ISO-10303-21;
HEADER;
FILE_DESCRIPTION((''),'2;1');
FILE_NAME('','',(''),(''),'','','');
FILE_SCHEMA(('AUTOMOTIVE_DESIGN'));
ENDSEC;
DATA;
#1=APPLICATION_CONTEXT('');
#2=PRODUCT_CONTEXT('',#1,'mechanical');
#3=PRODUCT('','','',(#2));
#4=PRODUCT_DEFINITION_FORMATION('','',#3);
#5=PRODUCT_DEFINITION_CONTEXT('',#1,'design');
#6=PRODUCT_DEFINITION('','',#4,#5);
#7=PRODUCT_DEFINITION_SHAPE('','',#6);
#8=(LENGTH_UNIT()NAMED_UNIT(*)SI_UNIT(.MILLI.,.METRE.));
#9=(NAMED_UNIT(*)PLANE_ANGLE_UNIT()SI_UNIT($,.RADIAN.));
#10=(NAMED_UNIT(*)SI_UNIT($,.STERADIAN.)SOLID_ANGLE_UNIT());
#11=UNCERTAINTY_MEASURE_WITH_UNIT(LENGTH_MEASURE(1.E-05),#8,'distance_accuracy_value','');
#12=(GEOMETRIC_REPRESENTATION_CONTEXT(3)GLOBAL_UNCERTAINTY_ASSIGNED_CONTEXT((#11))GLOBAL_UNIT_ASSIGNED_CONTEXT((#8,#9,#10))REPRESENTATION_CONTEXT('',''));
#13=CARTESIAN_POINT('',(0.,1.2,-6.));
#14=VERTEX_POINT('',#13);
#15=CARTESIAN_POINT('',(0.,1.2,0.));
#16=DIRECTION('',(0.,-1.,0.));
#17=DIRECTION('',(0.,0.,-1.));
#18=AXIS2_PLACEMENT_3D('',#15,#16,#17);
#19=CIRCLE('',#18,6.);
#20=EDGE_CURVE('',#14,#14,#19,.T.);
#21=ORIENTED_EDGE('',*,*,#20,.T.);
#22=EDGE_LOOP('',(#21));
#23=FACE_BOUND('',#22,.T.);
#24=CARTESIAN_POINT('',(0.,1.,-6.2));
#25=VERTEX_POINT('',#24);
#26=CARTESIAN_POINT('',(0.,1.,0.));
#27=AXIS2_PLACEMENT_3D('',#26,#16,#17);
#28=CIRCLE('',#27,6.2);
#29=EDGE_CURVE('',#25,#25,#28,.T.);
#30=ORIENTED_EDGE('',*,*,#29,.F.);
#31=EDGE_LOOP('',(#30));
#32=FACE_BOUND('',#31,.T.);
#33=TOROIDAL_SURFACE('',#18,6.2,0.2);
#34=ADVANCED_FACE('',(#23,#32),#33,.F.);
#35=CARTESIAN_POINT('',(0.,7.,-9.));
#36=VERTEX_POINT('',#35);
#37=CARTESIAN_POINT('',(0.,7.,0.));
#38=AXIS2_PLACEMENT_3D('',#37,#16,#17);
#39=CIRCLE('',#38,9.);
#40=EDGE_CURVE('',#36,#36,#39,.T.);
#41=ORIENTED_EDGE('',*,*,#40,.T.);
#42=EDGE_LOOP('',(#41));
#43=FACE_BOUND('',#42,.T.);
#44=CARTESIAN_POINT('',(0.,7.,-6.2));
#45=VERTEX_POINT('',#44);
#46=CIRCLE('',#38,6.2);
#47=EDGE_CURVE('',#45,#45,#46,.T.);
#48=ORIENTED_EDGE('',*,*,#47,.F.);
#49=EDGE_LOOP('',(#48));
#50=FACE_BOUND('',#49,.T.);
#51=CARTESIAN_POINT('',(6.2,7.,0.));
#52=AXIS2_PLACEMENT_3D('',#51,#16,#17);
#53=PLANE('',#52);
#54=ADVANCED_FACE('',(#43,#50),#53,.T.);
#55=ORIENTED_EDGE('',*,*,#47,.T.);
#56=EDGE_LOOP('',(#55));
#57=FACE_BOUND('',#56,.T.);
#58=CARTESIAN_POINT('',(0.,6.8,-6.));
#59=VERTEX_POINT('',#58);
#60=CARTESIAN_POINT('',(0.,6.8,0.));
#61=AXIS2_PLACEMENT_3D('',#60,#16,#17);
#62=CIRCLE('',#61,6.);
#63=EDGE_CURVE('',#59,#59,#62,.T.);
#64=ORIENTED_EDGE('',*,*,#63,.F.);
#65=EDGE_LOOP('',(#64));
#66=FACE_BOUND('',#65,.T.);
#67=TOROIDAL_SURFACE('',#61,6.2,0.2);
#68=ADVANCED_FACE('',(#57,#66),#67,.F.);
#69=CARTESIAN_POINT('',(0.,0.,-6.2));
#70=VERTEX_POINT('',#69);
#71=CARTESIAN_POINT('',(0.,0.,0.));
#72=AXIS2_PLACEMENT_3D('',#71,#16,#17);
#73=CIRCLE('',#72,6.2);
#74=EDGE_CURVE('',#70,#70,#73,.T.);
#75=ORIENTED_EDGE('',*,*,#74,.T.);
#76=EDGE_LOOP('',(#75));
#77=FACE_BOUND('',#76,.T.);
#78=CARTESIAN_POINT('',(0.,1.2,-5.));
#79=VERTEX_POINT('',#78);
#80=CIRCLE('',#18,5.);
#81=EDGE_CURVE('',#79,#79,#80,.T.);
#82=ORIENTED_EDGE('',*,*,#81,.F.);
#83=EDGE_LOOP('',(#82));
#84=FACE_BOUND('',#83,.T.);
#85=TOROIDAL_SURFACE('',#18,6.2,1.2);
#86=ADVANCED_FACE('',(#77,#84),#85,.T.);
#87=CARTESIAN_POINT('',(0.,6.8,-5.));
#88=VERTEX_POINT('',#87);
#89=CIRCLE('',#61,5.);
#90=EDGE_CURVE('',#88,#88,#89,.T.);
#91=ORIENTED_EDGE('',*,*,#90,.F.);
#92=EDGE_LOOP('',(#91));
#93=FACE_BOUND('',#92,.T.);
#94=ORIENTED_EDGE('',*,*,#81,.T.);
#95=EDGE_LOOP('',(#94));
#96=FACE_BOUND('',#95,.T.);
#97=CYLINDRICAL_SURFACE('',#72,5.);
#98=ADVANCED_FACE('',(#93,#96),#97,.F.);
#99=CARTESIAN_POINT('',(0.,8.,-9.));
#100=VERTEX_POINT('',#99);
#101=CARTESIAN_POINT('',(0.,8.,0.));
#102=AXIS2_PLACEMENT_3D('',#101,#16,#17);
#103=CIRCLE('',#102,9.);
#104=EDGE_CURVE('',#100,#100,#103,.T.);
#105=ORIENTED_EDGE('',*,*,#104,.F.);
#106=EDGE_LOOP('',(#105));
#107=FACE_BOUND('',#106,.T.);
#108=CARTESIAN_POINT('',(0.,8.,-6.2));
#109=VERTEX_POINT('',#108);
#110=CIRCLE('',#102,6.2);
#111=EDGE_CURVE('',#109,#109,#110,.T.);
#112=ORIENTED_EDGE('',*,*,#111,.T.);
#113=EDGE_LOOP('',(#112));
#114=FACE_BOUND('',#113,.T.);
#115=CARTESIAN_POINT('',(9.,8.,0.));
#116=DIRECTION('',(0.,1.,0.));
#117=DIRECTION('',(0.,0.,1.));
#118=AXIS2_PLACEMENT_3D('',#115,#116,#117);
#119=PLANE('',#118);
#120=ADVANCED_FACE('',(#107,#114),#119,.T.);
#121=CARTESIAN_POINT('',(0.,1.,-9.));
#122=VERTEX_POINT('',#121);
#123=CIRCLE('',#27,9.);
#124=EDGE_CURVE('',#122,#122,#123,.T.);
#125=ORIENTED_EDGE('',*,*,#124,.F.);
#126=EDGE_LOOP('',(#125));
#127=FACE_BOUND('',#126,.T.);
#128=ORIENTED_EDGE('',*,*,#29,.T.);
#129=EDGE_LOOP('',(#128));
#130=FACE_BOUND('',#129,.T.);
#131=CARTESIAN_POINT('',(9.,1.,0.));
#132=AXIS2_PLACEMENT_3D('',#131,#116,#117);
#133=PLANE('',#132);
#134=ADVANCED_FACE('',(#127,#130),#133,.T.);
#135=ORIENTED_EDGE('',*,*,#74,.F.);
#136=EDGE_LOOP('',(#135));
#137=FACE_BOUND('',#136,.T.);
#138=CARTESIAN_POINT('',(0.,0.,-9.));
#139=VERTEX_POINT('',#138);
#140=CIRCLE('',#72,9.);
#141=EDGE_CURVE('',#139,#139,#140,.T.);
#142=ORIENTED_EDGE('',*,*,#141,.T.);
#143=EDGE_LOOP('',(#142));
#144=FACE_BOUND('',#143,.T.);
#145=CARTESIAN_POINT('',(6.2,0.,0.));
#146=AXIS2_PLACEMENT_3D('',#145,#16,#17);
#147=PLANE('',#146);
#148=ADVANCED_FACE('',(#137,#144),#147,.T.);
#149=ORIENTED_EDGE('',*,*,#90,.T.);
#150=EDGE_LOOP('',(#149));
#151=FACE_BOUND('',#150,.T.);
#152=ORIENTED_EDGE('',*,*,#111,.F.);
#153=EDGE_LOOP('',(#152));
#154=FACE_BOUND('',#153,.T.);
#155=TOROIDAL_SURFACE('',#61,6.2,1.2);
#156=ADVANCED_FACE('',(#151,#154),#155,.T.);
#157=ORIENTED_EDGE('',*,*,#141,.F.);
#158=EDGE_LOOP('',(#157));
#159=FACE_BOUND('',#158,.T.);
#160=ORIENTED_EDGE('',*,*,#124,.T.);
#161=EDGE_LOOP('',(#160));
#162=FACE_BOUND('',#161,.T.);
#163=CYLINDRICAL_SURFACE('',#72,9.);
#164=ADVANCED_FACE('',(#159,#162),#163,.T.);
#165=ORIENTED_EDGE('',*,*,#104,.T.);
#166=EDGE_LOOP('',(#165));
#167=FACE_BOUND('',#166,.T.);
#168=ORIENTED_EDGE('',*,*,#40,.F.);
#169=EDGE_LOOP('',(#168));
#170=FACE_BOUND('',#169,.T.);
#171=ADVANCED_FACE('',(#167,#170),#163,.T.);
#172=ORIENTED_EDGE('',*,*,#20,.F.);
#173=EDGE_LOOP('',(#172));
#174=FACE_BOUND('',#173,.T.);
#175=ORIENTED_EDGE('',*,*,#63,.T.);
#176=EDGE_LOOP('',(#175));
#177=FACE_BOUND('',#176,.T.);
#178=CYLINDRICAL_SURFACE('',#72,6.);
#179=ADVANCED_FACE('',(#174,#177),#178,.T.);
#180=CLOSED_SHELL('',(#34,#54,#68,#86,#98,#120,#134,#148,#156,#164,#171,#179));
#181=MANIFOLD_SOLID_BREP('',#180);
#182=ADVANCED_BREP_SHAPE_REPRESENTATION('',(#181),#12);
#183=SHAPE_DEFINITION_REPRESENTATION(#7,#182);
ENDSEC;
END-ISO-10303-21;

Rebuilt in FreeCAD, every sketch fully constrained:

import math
import FreeCAD as App
import Part
import Sketcher
from FreeCAD import Vector

doc = App.newDocument("Part")
body = doc.addObject("PartDesign::Body", "Body")

sketch1 = body.newObject("Sketcher::SketchObject", "Sketch")
sketch1.AttachmentSupport = (doc.getObject("XY_Plane"), [""])
sketch1.MapMode = "FlatFace"
sketch1.addGeometry(Part.LineSegment(Vector(6.2, 0, 0), Vector(9, 0, 0)), False)
sketch1.addGeometry(Part.LineSegment(Vector(9, 0, 0), Vector(9, 1, 0)), False)
sketch1.addGeometry(Part.LineSegment(Vector(9, 1, 0), Vector(6.2, 1, 0)), False)
sketch1.addGeometry(Part.ArcOfCircle(Part.Circle(Vector(6.2, 1.2, 0), Vector(0, 0, 1), 0.2), math.radians(-180), math.radians(-90)), False)
sketch1.addGeometry(Part.LineSegment(Vector(6, 1.2, 0), Vector(6, 6.8, 0)), False)
sketch1.addGeometry(Part.ArcOfCircle(Part.Circle(Vector(6.2, 6.8, 0), Vector(0, 0, 1), 0.2), math.radians(90), math.radians(180)), False)
sketch1.addGeometry(Part.LineSegment(Vector(6.2, 7, 0), Vector(9, 7, 0)), False)
sketch1.addGeometry(Part.LineSegment(Vector(9, 7, 0), Vector(9, 8, 0)), False)
sketch1.addGeometry(Part.LineSegment(Vector(9, 8, 0), Vector(6.2, 8, 0)), False)
sketch1.addGeometry(Part.ArcOfCircle(Part.Circle(Vector(6.2, 6.8, 0), Vector(0, 0, 1), 1.2), math.radians(90), math.radians(180)), False)
sketch1.addGeometry(Part.LineSegment(Vector(5, 6.8, 0), Vector(5, 1.2, 0)), False)
sketch1.addGeometry(Part.ArcOfCircle(Part.Circle(Vector(6.2, 1.2, 0), Vector(0, 0, 1), 1.2), math.radians(-180), math.radians(-90)), False)
sketch1.addConstraint(Sketcher.Constraint("Coincident", 0, 2, 1, 1))
sketch1.addConstraint(Sketcher.Constraint("Coincident", 1, 2, 2, 1))
sketch1.addConstraint(Sketcher.Constraint("Tangent", 2, 2, 3, 2))
sketch1.addConstraint(Sketcher.Constraint("Tangent", 3, 1, 4, 1))
sketch1.addConstraint(Sketcher.Constraint("Tangent", 4, 2, 5, 2))
sketch1.addConstraint(Sketcher.Constraint("Tangent", 5, 1, 6, 1))
sketch1.addConstraint(Sketcher.Constraint("Coincident", 6, 2, 7, 1))
sketch1.addConstraint(Sketcher.Constraint("Coincident", 7, 2, 8, 1))
sketch1.addConstraint(Sketcher.Constraint("Tangent", 8, 2, 9, 1))
sketch1.addConstraint(Sketcher.Constraint("Tangent", 9, 2, 10, 1))
sketch1.addConstraint(Sketcher.Constraint("Tangent", 10, 2, 11, 1))
sketch1.addConstraint(Sketcher.Constraint("Tangent", 11, 2, 0, 1))
sketch1.addConstraint(Sketcher.Constraint("Horizontal", 0))
sketch1.addConstraint(Sketcher.Constraint("Vertical", 1))
sketch1.addConstraint(Sketcher.Constraint("Horizontal", 2))
sketch1.addConstraint(Sketcher.Constraint("Vertical", 4))
sketch1.addConstraint(Sketcher.Constraint("Horizontal", 6))
sketch1.addConstraint(Sketcher.Constraint("Vertical", 7))
sketch1.addConstraint(Sketcher.Constraint("Horizontal", 8))
sketch1.addConstraint(Sketcher.Constraint("Vertical", 10))
sketch1.addConstraint(Sketcher.Constraint("Coincident", 9, 3, 5, 3))
sketch1.addConstraint(Sketcher.Constraint("Coincident", 11, 3, 3, 3))
sketch1.addConstraint(Sketcher.Constraint("Equal", 3, 5))
sketch1.addConstraint(Sketcher.Constraint("PointOnObject", 0, 2, -1))
sketch1.addConstraint(Sketcher.Constraint("Vertical", 1, 2, 6, 2))
sketch1.addConstraint(Sketcher.Constraint("Radius", 3, 0.2))
sketch1.addConstraint(Sketcher.Constraint("Radius", 9, 1.2))
sketch1.addConstraint(Sketcher.Constraint("DistanceX", 0, 1, 0, 2, 2.8))
sketch1.addConstraint(Sketcher.Constraint("DistanceY", 4, 1, 4, 2, 5.6))
sketch1.addConstraint(Sketcher.Constraint("DistanceX", -1, 1, 0, 2, 9.0))
revolution = body.newObject("PartDesign::Revolution", "Revolution")
revolution.Profile = sketch1
revolution.ReferenceAxis = (sketch1, ["V_Axis"])
revolution.Angle = 360

doc.recompute()
